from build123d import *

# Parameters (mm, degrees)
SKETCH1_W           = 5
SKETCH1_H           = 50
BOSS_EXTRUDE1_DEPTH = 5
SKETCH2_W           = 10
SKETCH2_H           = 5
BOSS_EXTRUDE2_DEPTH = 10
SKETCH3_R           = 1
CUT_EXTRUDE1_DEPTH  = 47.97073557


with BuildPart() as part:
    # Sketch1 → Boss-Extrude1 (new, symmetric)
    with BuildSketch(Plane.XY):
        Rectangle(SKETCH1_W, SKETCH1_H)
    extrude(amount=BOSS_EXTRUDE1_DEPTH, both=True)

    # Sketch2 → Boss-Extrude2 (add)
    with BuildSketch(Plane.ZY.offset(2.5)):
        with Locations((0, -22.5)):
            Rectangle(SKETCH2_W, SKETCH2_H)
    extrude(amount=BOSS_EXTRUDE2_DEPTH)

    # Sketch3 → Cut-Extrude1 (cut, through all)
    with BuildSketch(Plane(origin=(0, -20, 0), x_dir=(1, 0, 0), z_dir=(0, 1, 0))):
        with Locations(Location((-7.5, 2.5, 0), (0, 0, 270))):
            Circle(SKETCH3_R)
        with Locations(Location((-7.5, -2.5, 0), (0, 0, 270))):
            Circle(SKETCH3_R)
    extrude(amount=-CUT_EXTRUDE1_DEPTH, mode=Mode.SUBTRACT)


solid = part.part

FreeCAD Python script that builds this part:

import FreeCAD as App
import Part
import Sketcher

V = App.Vector

doc = App.newDocument("Part")
body = doc.addObject("PartDesign::Body", "Body")

sketch1 = body.newObject("Sketcher::SketchObject", "Sketch")
sketch1.AttachmentSupport = (doc.getObject("XY_Plane"), [""])
sketch1.MapMode = "FlatFace"
sketch1.addGeometry(Part.LineSegment(V(-2, 25, 0), V(-2, -25, 0)), False)
sketch1.addGeometry(Part.LineSegment(V(-2, -25, 0), V(2, -25, 0)), False)
sketch1.addGeometry(Part.LineSegment(V(2, -25, 0), V(2, 25, 0)), False)
sketch1.addGeometry(Part.LineSegment(V(2, 25, 0), V(-2, 25, 0)), False)
sketch1.addConstraint(Sketcher.Constraint("Coincident", 0, 2, 1, 1))
sketch1.addConstraint(Sketcher.Constraint("Coincident", 1, 2, 2, 1))
sketch1.addConstraint(Sketcher.Constraint("Coincident", 2, 2, 3, 1))
sketch1.addConstraint(Sketcher.Constraint("Coincident", 3, 2, 0, 1))
sketch1.addConstraint(Sketcher.Constraint("Vertical", 0))
sketch1.addConstraint(Sketcher.Constraint("Horizontal", 1))
sketch1.addConstraint(Sketcher.Constraint("Vertical", 2))
sketch1.addConstraint(Sketcher.Constraint("Horizontal", 3))
sketch1.addConstraint(Sketcher.Constraint("Symmetric", 0, 2, 2, 2, -1, 1))
sketch1.addConstraint(Sketcher.Constraint("DistanceX", 1, 1, 1, 2, 5.0))
sketch1.addConstraint(Sketcher.Constraint("DistanceY", 0, 2, 0, 1, 50.0))
pad1 = body.newObject("PartDesign::Pad", "Pad")
pad1.Profile = sketch1
pad1.Length = 10
pad1.Midplane = True

sketch2 = body.newObject("Sketcher::SketchObject", "Sketch001")
sketch2.AttachmentSupport = (doc.getObject("YZ_Plane"), [""])
sketch2.MapMode = "FlatFace"
sketch2.AttachmentOffset = App.Placement(V(0, 0, -2.5), App.Rotation())
sketch2.addGeometry(Part.LineSegment(V(-20, -5, 0), V(-25, -5, 0)), False)
sketch2.addGeometry(Part.LineSegment(V(-25, -5, 0), V(-25, 5, 0)), False)
sketch2.addGeometry(Part.LineSegment(V(-25, 5, 0), V(-20, 5, 0)), False)
sketch2.addGeometry(Part.LineSegment(V(-20, 5, 0), V(-20, -5, 0)), False)
sketch2.addConstraint(Sketcher.Constraint("Coincident", 0, 2, 1, 1))
sketch2.addConstraint(Sketcher.Constraint("Coincident", 1, 2, 2, 1))
sketch2.addConstraint(Sketcher.Constraint("Coincident", 2, 2, 3, 1))
sketch2.addConstraint(Sketcher.Constraint("Coincident", 3, 2, 0, 1))
sketch2.addConstraint(Sketcher.Constraint("Horizontal", 0))
sketch2.addConstraint(Sketcher.Constraint("Vertical", 1))
sketch2.addConstraint(Sketcher.Constraint("Horizontal", 2))
sketch2.addConstraint(Sketcher.Constraint("Vertical", 3))
sketch2.addConstraint(Sketcher.Constraint("DistanceX", 0, 2, 0, 1, 5.0))
sketch2.addConstraint(Sketcher.Constraint("DistanceY", 1, 1, 1, 2, 10.0))
sketch2.addConstraint(Sketcher.Constraint("DistanceX", 0, 2, -1, 1, 25.0))
sketch2.addConstraint(Sketcher.Constraint("DistanceY", 0, 2, -1, 1, 5.0))
pad2 = body.newObject("PartDesign::Pad", "Pad001")
pad2.Profile = sketch2
pad2.Length = 10
pad2.Reversed = True

sketch3 = body.newObject("Sketcher::SketchObject", "Sketch002")
sketch3.AttachmentSupport = (doc.getObject("XZ_Plane"), [""])
sketch3.MapMode = "FlatFace"
sketch3.AttachmentOffset = App.Placement(V(0, 0, 20), App.Rotation())
sketch3.addGeometry(Part.Circle(V(-7.5, -2.5, 0), V(0, 0, 1), 1), False)
sketch3.addGeometry(Part.Circle(V(-7.5, 2.5, 0), V(0, 0, 1), 1), False)
sketch3.addConstraint(Sketcher.Constraint("Equal", 0, 1))
sketch3.addConstraint(Sketcher.Constraint("Symmetric", 0, 3, 1, 3, -1))
sketch3.addConstraint(Sketcher.Constraint("Diameter", 0, 2.0))
sketch3.addConstraint(Sketcher.Constraint("DistanceY", 0, 3, 1, 3, 5.0))
sketch3.addConstraint(Sketcher.Constraint("DistanceX", 0, 3, -1, 1, 7.5))
pocket1 = body.newObject("PartDesign::Pocket", "Pocket")
pocket1.Profile = sketch3
pocket1.Type = "ThroughAll"
pocket1.Reversed = True

doc.recompute()
